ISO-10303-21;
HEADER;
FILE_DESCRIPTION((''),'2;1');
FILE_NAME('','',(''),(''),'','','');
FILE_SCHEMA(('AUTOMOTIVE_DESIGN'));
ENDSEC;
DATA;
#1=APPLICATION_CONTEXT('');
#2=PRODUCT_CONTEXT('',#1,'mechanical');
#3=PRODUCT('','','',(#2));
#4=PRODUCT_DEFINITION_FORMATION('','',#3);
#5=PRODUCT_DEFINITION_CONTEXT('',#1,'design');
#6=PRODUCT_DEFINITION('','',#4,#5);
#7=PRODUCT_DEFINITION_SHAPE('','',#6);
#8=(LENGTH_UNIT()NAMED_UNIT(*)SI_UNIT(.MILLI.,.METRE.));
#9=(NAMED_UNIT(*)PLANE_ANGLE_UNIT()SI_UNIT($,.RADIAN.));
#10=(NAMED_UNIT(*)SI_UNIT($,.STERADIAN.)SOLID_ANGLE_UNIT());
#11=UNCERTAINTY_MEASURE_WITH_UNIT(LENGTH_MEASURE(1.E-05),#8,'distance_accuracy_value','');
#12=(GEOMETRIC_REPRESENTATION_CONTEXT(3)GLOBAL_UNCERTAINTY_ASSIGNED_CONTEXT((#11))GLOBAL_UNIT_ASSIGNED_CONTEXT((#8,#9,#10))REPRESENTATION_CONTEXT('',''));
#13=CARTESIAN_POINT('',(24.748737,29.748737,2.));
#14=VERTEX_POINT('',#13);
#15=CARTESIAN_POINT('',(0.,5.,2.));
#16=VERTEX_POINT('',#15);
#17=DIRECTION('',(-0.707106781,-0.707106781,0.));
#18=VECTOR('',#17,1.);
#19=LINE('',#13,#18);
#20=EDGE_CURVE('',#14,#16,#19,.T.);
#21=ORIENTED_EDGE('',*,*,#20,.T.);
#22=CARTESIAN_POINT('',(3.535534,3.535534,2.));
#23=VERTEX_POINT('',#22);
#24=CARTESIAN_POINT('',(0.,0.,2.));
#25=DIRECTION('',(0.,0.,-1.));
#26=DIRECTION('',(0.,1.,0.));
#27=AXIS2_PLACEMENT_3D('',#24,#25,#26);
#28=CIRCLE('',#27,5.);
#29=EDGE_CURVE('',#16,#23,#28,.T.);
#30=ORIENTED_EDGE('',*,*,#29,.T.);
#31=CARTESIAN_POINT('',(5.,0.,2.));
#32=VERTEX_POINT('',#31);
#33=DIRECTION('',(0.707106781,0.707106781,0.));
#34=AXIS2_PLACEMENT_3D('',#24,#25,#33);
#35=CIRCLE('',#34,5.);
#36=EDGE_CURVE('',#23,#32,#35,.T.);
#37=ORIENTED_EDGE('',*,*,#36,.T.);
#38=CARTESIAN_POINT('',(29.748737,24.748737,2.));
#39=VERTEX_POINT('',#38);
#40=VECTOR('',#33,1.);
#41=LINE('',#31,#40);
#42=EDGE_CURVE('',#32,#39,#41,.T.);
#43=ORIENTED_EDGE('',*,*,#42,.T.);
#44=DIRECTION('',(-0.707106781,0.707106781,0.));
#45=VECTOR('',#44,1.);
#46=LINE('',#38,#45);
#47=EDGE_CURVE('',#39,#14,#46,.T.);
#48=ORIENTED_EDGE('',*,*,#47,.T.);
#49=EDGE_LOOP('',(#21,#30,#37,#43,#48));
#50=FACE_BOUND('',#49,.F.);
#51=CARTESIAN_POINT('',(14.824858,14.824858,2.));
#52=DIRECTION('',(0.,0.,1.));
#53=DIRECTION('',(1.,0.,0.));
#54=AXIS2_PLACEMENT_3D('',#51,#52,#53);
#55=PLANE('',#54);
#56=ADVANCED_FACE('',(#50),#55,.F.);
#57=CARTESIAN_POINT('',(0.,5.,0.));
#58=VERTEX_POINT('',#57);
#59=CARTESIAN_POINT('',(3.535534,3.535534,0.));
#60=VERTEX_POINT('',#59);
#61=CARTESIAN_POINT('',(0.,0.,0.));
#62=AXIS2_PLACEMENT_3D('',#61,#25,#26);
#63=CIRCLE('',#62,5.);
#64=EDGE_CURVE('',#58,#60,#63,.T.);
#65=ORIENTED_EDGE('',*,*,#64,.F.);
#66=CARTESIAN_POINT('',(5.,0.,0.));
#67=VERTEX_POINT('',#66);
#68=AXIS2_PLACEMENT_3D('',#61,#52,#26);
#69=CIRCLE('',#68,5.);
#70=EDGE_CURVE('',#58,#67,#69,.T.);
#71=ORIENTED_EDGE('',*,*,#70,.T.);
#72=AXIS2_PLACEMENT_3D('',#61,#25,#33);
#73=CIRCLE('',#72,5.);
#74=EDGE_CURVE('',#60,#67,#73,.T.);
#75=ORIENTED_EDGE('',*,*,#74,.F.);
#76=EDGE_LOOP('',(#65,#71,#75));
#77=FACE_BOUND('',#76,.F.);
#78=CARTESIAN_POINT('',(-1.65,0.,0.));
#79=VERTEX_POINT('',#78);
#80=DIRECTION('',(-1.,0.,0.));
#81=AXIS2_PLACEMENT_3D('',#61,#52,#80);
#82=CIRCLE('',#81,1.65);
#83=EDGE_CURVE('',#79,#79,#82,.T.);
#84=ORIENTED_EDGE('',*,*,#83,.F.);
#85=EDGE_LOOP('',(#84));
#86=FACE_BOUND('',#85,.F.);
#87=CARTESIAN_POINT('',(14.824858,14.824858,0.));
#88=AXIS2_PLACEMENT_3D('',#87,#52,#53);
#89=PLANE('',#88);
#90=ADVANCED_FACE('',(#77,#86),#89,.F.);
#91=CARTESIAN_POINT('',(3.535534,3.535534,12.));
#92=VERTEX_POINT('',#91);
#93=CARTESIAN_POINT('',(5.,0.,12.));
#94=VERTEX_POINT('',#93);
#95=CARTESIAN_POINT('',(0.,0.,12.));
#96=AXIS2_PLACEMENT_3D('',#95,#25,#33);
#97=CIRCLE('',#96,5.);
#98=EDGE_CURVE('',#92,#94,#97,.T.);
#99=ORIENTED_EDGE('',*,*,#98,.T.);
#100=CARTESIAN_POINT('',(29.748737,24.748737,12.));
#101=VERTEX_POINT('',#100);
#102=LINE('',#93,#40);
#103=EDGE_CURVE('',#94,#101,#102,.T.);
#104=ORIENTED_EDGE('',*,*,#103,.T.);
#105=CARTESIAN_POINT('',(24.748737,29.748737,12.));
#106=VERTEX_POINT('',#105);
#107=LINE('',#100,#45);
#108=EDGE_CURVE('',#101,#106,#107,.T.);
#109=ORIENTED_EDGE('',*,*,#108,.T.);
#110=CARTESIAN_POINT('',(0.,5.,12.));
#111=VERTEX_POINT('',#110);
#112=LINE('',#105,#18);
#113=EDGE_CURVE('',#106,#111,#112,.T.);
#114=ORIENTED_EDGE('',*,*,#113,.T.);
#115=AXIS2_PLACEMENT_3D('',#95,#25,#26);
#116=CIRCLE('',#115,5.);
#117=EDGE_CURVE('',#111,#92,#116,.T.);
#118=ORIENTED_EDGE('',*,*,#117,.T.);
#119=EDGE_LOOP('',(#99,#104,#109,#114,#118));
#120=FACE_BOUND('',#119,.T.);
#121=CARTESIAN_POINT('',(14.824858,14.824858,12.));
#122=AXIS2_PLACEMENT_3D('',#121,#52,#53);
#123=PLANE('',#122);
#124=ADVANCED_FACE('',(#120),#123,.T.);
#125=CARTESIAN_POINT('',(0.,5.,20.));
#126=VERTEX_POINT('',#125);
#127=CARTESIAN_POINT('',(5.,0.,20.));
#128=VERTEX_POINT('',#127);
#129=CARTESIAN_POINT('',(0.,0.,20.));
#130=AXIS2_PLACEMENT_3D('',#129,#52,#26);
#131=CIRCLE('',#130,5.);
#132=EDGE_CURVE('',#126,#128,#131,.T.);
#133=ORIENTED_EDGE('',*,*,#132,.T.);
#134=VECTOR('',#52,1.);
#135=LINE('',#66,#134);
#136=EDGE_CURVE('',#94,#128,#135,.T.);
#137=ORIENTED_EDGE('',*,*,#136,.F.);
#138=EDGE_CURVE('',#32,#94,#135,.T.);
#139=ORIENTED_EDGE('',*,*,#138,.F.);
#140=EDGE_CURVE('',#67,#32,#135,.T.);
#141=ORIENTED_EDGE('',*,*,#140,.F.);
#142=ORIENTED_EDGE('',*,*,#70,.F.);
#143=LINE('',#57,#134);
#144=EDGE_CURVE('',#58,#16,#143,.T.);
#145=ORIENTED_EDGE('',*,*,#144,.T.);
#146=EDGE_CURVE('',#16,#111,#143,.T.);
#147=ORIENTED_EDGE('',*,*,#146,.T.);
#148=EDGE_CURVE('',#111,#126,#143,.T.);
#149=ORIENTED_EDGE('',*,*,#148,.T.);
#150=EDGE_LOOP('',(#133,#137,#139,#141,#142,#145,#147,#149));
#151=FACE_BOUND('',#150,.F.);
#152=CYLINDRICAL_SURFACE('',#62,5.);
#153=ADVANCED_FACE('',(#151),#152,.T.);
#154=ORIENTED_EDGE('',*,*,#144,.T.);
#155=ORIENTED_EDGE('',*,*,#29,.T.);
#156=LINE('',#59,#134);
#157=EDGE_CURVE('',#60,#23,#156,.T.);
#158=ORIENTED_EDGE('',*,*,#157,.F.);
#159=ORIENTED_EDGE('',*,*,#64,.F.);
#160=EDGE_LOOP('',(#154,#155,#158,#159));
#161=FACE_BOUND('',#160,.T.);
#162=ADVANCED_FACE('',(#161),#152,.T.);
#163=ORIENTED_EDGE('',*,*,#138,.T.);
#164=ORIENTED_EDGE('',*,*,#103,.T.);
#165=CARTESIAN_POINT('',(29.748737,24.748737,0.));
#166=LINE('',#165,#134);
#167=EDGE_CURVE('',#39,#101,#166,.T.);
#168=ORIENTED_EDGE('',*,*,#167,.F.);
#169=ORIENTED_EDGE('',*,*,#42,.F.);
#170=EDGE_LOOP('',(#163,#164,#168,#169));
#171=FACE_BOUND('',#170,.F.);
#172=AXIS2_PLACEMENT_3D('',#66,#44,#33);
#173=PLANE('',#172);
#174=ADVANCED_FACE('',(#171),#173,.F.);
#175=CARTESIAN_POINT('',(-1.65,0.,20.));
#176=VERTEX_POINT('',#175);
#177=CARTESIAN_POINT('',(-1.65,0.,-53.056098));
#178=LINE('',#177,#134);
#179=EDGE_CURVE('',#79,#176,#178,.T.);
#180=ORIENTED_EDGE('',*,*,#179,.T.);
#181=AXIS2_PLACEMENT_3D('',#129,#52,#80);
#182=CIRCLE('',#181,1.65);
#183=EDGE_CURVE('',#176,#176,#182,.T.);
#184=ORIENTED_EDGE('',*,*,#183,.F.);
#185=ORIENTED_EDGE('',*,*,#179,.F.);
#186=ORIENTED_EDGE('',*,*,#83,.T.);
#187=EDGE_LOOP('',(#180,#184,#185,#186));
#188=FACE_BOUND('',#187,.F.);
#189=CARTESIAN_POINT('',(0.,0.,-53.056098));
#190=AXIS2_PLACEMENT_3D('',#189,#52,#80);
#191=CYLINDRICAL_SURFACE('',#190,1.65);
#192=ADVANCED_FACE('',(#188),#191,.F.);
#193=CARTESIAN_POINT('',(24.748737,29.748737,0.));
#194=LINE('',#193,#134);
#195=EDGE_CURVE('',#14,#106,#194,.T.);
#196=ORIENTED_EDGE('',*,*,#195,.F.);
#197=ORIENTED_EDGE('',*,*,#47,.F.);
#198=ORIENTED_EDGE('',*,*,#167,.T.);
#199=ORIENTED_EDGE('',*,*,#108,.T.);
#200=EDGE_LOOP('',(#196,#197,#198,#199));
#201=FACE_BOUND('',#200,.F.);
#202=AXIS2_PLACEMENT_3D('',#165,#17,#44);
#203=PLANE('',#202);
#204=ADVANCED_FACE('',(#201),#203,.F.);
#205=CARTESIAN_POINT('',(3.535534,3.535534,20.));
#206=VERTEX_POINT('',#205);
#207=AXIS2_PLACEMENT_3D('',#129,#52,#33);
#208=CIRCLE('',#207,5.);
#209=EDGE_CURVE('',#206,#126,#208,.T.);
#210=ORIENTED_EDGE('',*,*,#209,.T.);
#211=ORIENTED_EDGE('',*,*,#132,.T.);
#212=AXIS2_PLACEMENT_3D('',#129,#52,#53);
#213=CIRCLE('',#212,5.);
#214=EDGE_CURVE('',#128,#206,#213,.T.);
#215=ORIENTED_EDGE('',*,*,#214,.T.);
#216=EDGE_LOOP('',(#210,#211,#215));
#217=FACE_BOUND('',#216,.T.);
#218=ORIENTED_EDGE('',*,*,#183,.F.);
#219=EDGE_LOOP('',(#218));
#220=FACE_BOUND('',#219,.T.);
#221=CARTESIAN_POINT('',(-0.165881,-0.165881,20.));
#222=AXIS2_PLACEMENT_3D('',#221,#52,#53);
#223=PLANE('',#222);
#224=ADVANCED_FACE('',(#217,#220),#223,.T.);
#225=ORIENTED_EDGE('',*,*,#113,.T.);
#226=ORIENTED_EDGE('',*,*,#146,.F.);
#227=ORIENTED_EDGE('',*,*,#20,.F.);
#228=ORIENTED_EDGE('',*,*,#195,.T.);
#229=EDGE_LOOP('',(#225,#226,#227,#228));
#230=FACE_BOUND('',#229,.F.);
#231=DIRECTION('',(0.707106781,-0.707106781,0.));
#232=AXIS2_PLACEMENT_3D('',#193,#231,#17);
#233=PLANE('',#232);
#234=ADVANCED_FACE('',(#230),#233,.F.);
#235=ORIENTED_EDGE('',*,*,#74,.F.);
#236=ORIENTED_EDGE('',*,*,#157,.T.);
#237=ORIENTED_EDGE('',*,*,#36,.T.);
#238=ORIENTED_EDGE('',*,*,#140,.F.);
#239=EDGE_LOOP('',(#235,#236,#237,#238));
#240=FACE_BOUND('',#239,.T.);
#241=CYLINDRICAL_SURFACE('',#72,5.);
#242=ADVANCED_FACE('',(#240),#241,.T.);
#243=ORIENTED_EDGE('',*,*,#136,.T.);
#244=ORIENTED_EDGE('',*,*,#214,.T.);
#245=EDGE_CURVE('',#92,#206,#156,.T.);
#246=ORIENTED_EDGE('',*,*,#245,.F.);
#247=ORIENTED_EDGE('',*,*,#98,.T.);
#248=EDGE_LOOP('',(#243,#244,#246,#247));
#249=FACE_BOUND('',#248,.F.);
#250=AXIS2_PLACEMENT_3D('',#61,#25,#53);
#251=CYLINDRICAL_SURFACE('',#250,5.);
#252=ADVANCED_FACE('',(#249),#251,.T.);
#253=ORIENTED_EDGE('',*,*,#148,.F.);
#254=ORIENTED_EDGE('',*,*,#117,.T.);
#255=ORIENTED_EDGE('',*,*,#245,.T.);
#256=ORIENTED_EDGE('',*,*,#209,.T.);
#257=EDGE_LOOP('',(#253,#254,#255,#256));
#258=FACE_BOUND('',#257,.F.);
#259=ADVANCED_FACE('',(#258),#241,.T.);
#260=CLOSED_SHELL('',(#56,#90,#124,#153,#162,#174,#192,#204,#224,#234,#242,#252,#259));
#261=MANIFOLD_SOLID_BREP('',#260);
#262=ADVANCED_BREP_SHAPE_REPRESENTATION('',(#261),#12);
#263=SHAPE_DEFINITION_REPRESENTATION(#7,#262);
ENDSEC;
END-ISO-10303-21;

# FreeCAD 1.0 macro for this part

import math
import FreeCAD as App
import Part
import Sketcher
from FreeCAD import Vector
Q = App.Units.Quantity

doc = App.newDocument("Part")
body = doc.addObject("PartDesign::Body", "Body")

sketch1 = body.newObject("Sketcher::SketchObject", "Sketch")
sketch1.AttachmentSupport = (doc.getObject("XY_Plane"), [""])
sketch1.MapMode = "FlatFace"
sketch1.addGeometry(Part.ArcOfCircle(Part.Circle(Vector(0, 0, 0), Vector(0, 0, 1), 5), math.radians(90), math.radians(360)), False)
sketch1.addGeometry(Part.ArcOfCircle(Part.Circle(Vector(0, 0, 0), Vector(0, 0, 1), 5), math.radians(0), math.radians(45)), False)
sketch1.addGeometry(Part.ArcOfCircle(Part.Circle(Vector(0, 0, 0), Vector(0, 0, 1), 5), math.radians(45), math.radians(90)), False)
sketch1.addConstraint(Sketcher.Constraint("Tangent", 0, 2, 1, 1))
sketch1.addConstraint(Sketcher.Constraint("Tangent", 1, 2, 2, 1))
sketch1.addConstraint(Sketcher.Constraint("Tangent", 2, 2, 0, 1))
sketch1.addConstraint(Sketcher.Constraint("Coincident", 0, 3, -1, 1))
sketch1.addConstraint(Sketcher.Constraint("PointOnObject", 0, 2, -1))
sketch1.addConstraint(Sketcher.Constraint("PointOnObject", 2, 2, -2))
sketch1.addConstraint(Sketcher.Constraint("Radius", 0, Q("5 mm")))
sketch1.addConstraint(Sketcher.Constraint("DistanceX", -1, 1, 1, 2, Q("3.535534 mm")))
pad1 = body.newObject("PartDesign::Pad", "Pad")
pad1.Profile = sketch1
pad1.Length = 20

sketch2 = body.newObject("Sketcher::SketchObject", "Sketch001")
sketch2.AttachmentSupport = (doc.getObject("XY_Plane"), [""])
sketch2.MapMode = "FlatFace"
sketch2.addGeometry(Part.LineSegment(Vector(24.7, 29.7, 0), Vector(0, 5, 0)), False)
sketch2.addGeometry(Part.ArcOfCircle(Part.Circle(Vector(0, 0, 0), Vector(0, 0, 1), 5), math.radians(45), math.radians(90)), False)
sketch2.addGeometry(Part.ArcOfCircle(Part.Circle(Vector(0, 0, 0), Vector(0, 0, 1), 5), math.radians(0), math.radians(45)), False)
sketch2.addGeometry(Part.LineSegment(Vector(5, 0, 0), Vector(29.7, 24.7, 0)), False)
sketch2.addGeometry(Part.LineSegment(Vector(29.7, 24.7, 0), Vector(24.7, 29.7, 0)), False)
sketch2.addConstraint(Sketcher.Constraint("Coincident", 0, 2, 1, 2))
sketch2.addConstraint(Sketcher.Constraint("Tangent", 1, 1, 2, 2))
sketch2.addConstraint(Sketcher.Constraint("Coincident", 2, 1, 3, 1))
sketch2.addConstraint(Sketcher.Constraint("Coincident", 3, 2, 4, 1))
sketch2.addConstraint(Sketcher.Constraint("Coincident", 4, 2, 0, 1))
sketch2.addConstraint(Sketcher.Constraint("Coincident", 1, 3, -1, 1))
sketch2.addConstraint(Sketcher.Constraint("Equal", 1, 2))
sketch2.addConstraint(Sketcher.Constraint("PointOnObject", 0, 2, -2))
sketch2.addConstraint(Sketcher.Constraint("PointOnObject", 2, 1, -1))
sketch2.addConstraint(Sketcher.Constraint("Parallel", 0, 3))
sketch2.addConstraint(Sketcher.Constraint("Perpendicular", 3, 4))
sketch2.addConstraint(Sketcher.Constraint("Equal", 0, 3))
sketch2.addConstraint(Sketcher.Constraint("Radius", 1, Q("5 mm")))
sketch2.addConstraint(Sketcher.Constraint("Distance", 0, Q("35 mm")))
sketch2.addConstraint(Sketcher.Constraint("DistanceX", -1, 1, 1, 1, Q("3.535534 mm")))
pad2 = body.newObject("PartDesign::Pad", "Pad001")
pad2.Profile = sketch2
pad2.Length = 12

sketch3 = body.newObject("Sketcher::SketchObject", "Sketch002")
sketch3.AttachmentSupport = (doc.getObject("XY_Plane"), [""])
sketch3.MapMode = "FlatFace"
sketch3.addGeometry(Part.LineSegment(Vector(24.7, 29.7, 0), Vector(0, 5, 0)), False)
sketch3.addGeometry(Part.ArcOfCircle(Part.Circle(Vector(0, 0, 0), Vector(0, 0, 1), 5), math.radians(45), math.radians(90)), False)
sketch3.addGeometry(Part.ArcOfCircle(Part.Circle(Vector(0, 0, 0), Vector(0, 0, 1), 5), math.radians(0), math.radians(45)), False)
sketch3.addGeometry(Part.LineSegment(Vector(5, 0, 0), Vector(29.7, 24.7, 0)), False)
sketch3.addGeometry(Part.LineSegment(Vector(29.7, 24.7, 0), Vector(24.7, 29.7, 0)), False)
sketch3.addConstraint(Sketcher.Constraint("Coincident", 0, 2, 1, 2))
sketch3.addConstraint(Sketcher.Constraint("Tangent", 1, 1, 2, 2))
sketch3.addConstraint(Sketcher.Constraint("Coincident", 2, 1, 3, 1))
sketch3.addConstraint(Sketcher.Constraint("Coincident", 3, 2, 4, 1))
sketch3.addConstraint(Sketcher.Constraint("Coincident", 4, 2, 0, 1))
sketch3.addConstraint(Sketcher.Constraint("Coincident", 1, 3, -1, 1))
sketch3.addConstraint(Sketcher.Constraint("Equal", 1, 2))
sketch3.addConstraint(Sketcher.Constraint("PointOnObject", 0, 2, -2))
sketch3.addConstraint(Sketcher.Constraint("PointOnObject", 2, 1, -1))
sketch3.addConstraint(Sketcher.Constraint("Parallel", 0, 3))
sketch3.addConstraint(Sketcher.Constraint("Perpendicular", 3, 4))
sketch3.addConstraint(Sketcher.Constraint("Equal", 0, 3))
sketch3.addConstraint(Sketcher.Constraint("Radius", 1, Q("5 mm")))
sketch3.addConstraint(Sketcher.Constraint("Distance", 0, Q("35 mm")))
sketch3.addConstraint(Sketcher.Constraint("DistanceX", -1, 1, 1, 1, Q("3.535534 mm")))
pocket1 = body.newObject("PartDesign::Pocket", "Pocket")
pocket1.Profile = sketch3
pocket1.Length = 2
pocket1.Reversed = True

sketch4 = body.newObject("Sketcher::SketchObject", "Sketch003")
sketch4.AttachmentSupport = (doc.getObject("XY_Plane"), [""])
sketch4.MapMode = "FlatFace"
sketch4.addGeometry(Part.Circle(Vector(0, 0, 0), Vector(0, 0, 1), 1.6), False)
sketch4.addConstraint(Sketcher.Constraint("Coincident", 0, 3, -1, 1))
sketch4.addConstraint(Sketcher.Constraint("Diameter", 0, Q("3.3 mm")))
doc.recompute()
hole = body.newObject("PartDesign::Hole", "Hole")
hole.Profile = sketch4
hole.ThreadType = "None"
hole.Diameter = 3.3
hole.DepthType = "ThroughAll"
hole.Reversed = True

doc.recompute()
